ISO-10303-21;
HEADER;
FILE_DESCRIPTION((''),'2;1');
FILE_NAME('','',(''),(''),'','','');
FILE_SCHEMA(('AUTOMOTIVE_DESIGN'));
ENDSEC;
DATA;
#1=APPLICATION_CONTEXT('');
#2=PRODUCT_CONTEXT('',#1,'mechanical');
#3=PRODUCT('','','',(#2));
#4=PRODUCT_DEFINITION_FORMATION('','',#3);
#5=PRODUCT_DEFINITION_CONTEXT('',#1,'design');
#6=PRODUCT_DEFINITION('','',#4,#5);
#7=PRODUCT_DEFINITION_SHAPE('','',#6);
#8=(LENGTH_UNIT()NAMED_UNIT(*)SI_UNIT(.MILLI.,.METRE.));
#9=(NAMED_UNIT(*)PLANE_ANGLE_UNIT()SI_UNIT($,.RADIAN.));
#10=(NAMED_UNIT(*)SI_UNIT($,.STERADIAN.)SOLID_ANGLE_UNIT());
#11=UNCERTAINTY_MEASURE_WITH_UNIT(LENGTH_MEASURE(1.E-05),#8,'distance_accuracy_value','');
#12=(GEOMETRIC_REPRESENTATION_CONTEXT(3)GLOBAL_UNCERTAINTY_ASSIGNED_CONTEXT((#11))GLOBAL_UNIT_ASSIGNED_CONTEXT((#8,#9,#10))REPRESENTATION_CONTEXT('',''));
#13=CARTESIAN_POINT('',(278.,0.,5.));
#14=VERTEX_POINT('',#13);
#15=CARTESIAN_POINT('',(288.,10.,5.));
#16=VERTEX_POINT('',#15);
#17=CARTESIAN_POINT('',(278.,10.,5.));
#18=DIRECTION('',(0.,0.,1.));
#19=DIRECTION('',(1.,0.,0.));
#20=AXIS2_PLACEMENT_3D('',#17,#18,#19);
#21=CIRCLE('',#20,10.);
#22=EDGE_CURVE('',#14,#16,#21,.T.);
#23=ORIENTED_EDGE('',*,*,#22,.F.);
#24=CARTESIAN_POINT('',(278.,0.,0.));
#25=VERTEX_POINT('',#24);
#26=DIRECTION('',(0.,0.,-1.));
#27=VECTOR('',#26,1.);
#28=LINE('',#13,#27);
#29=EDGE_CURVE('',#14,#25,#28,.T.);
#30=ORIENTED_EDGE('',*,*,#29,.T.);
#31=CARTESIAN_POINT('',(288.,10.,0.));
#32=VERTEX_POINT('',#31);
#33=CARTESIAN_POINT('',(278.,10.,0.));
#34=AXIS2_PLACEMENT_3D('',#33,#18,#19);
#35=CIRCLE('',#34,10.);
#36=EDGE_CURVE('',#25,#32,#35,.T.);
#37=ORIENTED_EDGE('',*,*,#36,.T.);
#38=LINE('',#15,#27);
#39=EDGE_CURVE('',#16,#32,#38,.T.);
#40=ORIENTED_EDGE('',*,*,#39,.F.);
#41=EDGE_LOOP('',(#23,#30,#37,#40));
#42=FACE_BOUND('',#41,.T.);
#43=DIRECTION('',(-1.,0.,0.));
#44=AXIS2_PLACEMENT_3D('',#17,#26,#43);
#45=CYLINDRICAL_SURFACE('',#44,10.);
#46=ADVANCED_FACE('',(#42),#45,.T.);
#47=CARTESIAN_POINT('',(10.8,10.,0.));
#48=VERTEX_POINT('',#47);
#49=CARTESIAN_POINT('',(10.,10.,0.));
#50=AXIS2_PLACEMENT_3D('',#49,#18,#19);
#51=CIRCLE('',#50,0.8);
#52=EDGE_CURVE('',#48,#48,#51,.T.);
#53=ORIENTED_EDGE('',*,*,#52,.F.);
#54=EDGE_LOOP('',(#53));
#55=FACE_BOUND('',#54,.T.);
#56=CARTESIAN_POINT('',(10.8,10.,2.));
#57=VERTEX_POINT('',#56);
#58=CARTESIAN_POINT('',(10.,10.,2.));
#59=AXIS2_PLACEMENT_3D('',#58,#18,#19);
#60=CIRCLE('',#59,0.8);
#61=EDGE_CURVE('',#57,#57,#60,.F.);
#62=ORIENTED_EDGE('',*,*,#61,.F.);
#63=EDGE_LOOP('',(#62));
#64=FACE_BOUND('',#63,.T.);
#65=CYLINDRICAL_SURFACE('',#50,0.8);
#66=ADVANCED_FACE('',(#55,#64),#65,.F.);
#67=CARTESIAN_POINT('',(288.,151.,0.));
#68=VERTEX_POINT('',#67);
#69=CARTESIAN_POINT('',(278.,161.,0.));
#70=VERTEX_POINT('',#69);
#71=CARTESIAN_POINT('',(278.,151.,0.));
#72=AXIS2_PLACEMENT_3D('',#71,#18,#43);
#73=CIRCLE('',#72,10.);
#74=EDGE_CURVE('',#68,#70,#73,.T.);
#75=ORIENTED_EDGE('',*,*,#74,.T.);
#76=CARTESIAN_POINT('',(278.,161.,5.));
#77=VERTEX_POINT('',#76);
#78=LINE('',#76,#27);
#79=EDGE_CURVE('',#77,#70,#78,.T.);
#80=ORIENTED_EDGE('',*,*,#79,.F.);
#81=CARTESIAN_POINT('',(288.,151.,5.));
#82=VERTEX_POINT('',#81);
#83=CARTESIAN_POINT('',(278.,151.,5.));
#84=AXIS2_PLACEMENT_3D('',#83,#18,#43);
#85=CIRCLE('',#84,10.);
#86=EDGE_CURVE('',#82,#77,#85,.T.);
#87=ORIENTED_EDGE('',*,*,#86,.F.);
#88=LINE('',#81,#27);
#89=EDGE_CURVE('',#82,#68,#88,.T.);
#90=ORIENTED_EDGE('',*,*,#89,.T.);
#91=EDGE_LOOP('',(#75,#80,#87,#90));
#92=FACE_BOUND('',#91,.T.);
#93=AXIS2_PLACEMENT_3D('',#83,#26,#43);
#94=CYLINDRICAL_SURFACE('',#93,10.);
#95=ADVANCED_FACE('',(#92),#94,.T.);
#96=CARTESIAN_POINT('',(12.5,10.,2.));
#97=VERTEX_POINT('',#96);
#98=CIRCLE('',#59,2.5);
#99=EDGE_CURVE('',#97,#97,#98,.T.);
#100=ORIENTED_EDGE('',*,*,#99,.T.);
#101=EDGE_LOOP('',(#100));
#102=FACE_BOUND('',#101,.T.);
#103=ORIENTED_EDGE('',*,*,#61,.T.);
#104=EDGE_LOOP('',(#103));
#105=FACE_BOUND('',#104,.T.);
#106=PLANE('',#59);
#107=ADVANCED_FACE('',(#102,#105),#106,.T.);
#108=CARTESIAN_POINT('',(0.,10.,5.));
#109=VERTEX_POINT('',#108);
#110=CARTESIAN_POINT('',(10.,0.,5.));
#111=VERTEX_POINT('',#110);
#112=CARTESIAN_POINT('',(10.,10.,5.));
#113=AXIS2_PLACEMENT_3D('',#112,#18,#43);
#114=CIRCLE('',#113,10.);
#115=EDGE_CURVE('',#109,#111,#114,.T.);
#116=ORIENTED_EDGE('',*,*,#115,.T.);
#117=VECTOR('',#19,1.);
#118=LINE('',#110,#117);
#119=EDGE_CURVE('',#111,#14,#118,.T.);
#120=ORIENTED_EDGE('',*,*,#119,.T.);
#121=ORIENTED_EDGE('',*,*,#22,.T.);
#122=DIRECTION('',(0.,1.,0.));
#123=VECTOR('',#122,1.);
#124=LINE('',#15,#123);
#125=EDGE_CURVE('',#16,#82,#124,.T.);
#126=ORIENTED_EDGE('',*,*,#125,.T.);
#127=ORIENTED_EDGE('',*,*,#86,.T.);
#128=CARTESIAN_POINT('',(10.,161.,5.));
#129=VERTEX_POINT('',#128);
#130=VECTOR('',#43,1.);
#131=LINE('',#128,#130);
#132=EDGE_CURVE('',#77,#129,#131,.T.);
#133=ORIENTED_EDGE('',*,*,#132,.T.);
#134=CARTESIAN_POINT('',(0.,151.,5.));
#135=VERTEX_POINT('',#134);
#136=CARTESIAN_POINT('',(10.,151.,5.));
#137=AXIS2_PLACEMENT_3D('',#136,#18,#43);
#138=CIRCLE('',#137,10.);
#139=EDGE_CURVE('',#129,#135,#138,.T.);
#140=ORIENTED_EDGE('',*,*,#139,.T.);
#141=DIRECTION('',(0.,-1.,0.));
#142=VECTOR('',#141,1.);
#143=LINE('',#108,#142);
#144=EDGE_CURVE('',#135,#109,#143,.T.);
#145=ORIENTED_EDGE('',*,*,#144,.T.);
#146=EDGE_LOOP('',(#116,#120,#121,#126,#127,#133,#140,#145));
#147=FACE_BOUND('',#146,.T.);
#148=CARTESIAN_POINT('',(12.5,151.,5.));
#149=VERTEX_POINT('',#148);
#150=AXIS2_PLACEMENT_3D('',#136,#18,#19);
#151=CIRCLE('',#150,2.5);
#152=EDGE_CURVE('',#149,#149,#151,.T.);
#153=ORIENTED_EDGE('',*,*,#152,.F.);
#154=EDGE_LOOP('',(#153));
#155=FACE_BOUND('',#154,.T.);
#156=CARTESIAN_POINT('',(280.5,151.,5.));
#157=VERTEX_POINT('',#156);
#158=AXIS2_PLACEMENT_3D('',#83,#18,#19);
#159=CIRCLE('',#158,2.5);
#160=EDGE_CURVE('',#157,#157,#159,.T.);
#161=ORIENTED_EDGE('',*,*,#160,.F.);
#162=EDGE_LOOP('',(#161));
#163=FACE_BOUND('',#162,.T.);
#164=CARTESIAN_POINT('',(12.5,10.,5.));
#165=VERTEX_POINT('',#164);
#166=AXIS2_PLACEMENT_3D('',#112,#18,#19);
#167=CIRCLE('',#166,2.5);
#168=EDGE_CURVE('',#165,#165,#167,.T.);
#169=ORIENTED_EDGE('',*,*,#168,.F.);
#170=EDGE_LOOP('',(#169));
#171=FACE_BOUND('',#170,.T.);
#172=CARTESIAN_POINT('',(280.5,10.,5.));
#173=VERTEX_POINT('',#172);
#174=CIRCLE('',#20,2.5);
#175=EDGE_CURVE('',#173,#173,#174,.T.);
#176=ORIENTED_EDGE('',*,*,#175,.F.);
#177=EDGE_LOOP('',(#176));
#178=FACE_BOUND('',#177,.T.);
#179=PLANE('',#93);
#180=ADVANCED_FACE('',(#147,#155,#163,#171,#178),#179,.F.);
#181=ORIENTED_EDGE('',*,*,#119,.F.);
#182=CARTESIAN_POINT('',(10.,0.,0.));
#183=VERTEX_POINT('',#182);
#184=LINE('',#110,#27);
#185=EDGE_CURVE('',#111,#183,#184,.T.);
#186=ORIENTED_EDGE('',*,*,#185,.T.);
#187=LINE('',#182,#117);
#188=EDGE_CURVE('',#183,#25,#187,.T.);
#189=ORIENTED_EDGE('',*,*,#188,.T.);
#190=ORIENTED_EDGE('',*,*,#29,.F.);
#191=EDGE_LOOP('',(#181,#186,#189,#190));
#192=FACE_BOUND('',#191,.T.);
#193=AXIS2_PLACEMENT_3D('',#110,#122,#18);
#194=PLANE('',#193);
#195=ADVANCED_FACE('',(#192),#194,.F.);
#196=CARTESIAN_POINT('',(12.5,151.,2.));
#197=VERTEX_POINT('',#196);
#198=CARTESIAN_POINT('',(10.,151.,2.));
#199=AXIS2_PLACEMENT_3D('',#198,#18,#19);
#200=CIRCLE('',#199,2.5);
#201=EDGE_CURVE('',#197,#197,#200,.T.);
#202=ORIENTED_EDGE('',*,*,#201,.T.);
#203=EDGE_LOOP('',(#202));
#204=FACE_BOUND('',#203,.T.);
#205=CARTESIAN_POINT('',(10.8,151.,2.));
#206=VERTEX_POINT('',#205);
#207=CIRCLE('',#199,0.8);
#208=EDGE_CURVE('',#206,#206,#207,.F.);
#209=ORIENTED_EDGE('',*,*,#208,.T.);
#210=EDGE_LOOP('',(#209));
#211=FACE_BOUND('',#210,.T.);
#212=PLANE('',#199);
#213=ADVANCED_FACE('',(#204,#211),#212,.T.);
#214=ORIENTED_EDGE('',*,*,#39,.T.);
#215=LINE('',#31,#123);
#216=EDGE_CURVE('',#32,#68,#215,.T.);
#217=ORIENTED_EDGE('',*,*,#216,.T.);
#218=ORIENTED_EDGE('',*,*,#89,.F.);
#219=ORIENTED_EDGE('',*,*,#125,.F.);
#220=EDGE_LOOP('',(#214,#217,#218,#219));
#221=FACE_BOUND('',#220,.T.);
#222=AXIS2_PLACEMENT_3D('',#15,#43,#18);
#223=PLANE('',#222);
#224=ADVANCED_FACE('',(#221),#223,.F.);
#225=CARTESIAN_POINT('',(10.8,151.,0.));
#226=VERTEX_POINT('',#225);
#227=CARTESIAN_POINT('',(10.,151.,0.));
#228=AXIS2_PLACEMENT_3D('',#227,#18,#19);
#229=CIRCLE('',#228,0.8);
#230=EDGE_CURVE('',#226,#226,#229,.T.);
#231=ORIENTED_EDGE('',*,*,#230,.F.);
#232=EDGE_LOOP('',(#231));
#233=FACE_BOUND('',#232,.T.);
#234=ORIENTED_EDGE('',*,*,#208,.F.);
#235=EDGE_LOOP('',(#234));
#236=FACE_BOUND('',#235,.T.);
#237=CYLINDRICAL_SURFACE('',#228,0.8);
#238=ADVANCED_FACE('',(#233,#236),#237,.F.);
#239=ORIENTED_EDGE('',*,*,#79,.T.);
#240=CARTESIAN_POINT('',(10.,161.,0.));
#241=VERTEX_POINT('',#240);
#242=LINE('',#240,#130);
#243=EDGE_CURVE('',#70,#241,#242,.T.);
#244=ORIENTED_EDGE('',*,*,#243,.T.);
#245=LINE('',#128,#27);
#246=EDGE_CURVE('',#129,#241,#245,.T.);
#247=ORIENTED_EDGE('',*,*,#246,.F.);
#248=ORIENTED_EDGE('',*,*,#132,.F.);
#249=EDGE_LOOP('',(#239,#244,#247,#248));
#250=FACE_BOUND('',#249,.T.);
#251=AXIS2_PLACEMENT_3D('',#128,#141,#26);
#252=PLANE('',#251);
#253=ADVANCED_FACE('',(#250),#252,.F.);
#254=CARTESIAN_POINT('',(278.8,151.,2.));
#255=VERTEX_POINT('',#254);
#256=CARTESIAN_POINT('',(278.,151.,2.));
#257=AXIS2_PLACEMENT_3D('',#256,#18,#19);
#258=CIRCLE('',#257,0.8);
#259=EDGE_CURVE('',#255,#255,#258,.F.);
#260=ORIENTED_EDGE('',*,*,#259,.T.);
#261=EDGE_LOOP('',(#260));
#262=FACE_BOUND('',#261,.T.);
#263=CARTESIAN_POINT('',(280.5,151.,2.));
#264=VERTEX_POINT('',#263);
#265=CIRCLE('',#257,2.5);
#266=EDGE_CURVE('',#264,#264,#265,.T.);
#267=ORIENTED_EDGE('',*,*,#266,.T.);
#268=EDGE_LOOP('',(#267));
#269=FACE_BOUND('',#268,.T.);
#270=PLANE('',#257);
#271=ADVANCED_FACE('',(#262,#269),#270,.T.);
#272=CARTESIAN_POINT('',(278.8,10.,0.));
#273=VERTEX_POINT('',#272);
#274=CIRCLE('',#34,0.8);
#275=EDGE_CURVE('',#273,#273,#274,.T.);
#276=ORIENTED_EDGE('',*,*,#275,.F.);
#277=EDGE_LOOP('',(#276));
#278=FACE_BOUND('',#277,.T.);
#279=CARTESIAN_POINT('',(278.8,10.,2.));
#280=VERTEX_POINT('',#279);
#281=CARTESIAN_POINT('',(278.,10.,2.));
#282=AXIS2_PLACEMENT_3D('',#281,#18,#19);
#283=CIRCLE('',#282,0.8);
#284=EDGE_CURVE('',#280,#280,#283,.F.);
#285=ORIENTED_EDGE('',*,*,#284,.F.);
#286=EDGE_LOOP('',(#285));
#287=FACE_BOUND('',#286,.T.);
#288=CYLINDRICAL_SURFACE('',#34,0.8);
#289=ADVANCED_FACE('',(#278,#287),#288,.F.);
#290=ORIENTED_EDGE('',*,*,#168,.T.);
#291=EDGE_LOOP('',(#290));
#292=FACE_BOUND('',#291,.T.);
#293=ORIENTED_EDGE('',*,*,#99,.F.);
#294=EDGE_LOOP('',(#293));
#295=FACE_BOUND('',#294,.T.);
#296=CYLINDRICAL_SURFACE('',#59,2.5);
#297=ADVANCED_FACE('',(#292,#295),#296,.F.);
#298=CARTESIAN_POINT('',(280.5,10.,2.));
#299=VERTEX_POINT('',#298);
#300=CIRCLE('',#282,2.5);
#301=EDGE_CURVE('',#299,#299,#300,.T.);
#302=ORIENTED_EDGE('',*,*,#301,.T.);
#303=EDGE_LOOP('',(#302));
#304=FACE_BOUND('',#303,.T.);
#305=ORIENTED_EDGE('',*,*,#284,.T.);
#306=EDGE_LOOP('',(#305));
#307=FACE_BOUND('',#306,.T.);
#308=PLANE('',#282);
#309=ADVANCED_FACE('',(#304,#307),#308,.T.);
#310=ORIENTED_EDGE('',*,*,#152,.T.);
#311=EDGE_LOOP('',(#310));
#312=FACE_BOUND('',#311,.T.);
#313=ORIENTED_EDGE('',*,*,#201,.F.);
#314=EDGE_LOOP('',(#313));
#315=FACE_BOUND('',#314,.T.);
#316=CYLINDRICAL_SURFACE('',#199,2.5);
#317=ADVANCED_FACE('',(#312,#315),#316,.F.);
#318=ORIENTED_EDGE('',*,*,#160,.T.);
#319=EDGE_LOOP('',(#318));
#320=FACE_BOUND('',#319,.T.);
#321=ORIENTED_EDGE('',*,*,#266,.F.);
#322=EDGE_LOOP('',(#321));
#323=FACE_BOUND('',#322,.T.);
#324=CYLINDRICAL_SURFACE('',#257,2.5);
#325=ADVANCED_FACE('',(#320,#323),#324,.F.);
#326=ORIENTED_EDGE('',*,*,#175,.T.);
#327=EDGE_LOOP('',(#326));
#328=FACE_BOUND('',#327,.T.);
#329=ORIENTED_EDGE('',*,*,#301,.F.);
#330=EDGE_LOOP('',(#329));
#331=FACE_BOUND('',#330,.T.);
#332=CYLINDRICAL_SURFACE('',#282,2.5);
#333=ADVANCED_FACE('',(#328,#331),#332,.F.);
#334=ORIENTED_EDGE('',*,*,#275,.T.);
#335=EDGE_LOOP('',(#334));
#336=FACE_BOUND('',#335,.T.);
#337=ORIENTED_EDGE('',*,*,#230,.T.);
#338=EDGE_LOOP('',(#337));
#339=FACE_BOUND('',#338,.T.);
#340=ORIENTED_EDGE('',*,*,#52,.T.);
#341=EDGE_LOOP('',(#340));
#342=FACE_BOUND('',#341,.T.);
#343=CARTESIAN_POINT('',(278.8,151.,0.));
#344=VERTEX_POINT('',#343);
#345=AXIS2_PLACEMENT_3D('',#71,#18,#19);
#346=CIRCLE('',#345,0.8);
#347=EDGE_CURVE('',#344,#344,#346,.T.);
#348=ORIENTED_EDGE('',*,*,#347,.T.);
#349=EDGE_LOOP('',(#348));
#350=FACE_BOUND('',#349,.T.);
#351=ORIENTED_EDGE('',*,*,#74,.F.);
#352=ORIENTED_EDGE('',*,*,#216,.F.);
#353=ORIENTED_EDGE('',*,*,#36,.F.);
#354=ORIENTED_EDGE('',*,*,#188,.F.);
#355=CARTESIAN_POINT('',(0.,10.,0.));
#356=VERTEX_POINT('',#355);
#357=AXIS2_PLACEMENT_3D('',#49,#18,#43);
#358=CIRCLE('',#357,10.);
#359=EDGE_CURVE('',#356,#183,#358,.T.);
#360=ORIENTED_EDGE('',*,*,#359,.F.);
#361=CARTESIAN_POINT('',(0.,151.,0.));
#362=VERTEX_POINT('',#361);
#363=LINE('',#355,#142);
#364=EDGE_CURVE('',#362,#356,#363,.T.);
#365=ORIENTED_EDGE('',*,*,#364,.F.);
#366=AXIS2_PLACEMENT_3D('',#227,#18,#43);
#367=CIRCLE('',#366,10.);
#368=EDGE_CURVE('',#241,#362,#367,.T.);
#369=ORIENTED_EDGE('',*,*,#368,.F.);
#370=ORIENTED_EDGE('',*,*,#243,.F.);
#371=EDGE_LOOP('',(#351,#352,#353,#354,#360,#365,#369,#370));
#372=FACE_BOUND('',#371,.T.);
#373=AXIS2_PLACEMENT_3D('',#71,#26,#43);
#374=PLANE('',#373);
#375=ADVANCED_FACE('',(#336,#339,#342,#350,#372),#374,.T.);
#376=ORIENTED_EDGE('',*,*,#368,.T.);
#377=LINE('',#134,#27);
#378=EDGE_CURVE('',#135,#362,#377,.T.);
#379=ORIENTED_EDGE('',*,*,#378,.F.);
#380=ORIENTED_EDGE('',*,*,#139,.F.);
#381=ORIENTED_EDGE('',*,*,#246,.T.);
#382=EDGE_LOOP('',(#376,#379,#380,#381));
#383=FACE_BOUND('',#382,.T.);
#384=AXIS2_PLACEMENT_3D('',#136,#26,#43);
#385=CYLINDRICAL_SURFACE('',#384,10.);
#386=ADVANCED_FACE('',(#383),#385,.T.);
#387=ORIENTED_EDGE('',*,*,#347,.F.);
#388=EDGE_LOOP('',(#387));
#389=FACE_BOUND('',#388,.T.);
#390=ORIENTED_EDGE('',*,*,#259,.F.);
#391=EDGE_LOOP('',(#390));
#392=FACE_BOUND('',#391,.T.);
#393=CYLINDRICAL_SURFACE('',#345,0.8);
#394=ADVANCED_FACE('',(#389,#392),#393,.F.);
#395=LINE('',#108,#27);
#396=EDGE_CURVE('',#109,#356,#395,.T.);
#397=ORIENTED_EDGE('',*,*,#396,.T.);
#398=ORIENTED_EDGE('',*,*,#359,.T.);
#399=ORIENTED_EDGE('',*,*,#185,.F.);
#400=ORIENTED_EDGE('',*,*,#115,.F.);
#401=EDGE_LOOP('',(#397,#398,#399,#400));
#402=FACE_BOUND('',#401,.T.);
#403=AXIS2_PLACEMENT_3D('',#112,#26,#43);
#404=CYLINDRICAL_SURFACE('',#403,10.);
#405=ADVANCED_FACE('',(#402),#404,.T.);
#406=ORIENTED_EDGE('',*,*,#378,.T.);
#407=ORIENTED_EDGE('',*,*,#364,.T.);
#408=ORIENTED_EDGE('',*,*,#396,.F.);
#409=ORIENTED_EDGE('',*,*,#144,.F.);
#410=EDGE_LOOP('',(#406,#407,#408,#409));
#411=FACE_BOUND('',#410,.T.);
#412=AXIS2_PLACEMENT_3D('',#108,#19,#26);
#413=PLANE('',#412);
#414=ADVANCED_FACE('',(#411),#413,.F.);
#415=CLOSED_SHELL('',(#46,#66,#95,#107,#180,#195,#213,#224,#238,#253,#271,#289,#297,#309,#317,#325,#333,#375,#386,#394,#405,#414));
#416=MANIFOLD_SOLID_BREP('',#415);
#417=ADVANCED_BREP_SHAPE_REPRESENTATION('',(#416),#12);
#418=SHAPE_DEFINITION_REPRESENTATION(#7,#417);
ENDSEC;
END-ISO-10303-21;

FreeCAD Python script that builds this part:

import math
import FreeCAD as App
import Part
import Sketcher
from FreeCAD import Vector
Q = App.Units.Quantity

doc = App.newDocument("Part")
params = doc.addObject("Spreadsheet::Sheet", "Params")
for row, (alias, value) in enumerate([
    ("sketch1_radius", "10 mm"),
    ("sketch1_width", "268 mm"),
    ("sketch1_height", "141 mm"),
    ("pad1_length", "5 mm"),
    ("sketch2_diameter", "1.6 mm"),
    ("sketch3_diameter", "5 mm"),
    ("pocket2_length", "3 mm"),
], start=1):
    params.set(f"A{row}", alias)
    params.set(f"B{row}", "=" + value)
    params.setAlias(f"B{row}", alias)

body = doc.addObject("PartDesign::Body", "Body")

# Sketch on XY plane
sketch1 = body.newObject("Sketcher::SketchObject", "Sketch")
sketch1.AttachmentSupport = (doc.getObject("XY_Plane"), [""])
sketch1.MapMode = "FlatFace"
sketch1.addGeometry([
    Part.LineSegment(Vector(10, 0, 0), Vector(278, 0, 0)),  # 0
    Part.ArcOfCircle(Part.Circle(Vector(278, 10, 0), Vector(0, 0, 1), 10), math.radians(-90), math.radians(0)),  # 1
    Part.LineSegment(Vector(288, 10, 0), Vector(288, 151, 0)),  # 2
    Part.ArcOfCircle(Part.Circle(Vector(278, 151, 0), Vector(0, 0, 1), 10), math.radians(0), math.radians(90)),  # 3
    Part.LineSegment(Vector(278, 161, 0), Vector(10, 161, 0)),  # 4
    Part.ArcOfCircle(Part.Circle(Vector(10, 151, 0), Vector(0, 0, 1), 10), math.radians(90), math.radians(180)),  # 5
    Part.LineSegment(Vector(0, 151, 0), Vector(0, 10, 0)),  # 6
    Part.ArcOfCircle(Part.Circle(Vector(10, 10, 0), Vector(0, 0, 1), 10), math.radians(180), math.radians(270)),  # 7
], False)
sketch1.addConstraint([
    Sketcher.Constraint("Tangent", 0, 2, 1, 1),
    Sketcher.Constraint("Tangent", 1, 2, 2, 1),
    Sketcher.Constraint("Tangent", 2, 2, 3, 1),
    Sketcher.Constraint("Tangent", 3, 2, 4, 1),
    Sketcher.Constraint("Tangent", 4, 2, 5, 1),
    Sketcher.Constraint("Tangent", 5, 2, 6, 1),
    Sketcher.Constraint("Tangent", 6, 2, 7, 1),
    Sketcher.Constraint("Tangent", 7, 2, 0, 1),
    Sketcher.Constraint("Horizontal", 0),
    Sketcher.Constraint("Vertical", 2),
    Sketcher.Constraint("Horizontal", 4),
    Sketcher.Constraint("Vertical", 6),
    Sketcher.Constraint("Equal", 1, 3),
    Sketcher.Constraint("Equal", 3, 5),
    Sketcher.Constraint("Equal", 5, 7),
    Sketcher.Constraint("PointOnObject", 0, 2, -1),
    Sketcher.Constraint("PointOnObject", 5, 2, -2),
    Sketcher.Constraint("Radius", 1, Q("10 mm")),
    Sketcher.Constraint("DistanceX", 0, 1, 0, 2, Q("268 mm")),
    Sketcher.Constraint("DistanceY", 2, 1, 2, 2, Q("141 mm")),
])
sketch1.setExpression("Constraints[17]", "Params.sketch1_radius")
sketch1.setExpression("Constraints[18]", "Params.sketch1_width")
sketch1.setExpression("Constraints[19]", "Params.sketch1_height")
pad1 = body.newObject("PartDesign::Pad", "Pad")
pad1.Profile = sketch1
pad1.setExpression("Length", "Params.pad1_length")

# Sketch on XY plane
sketch2 = body.newObject("Sketcher::SketchObject", "Sketch001")
sketch2.AttachmentSupport = (doc.getObject("XY_Plane"), [""])
sketch2.MapMode = "FlatFace"
sketch2.AttachmentOffset = App.Placement(Vector(0, 0, 5), App.Rotation())
sketch2.addGeometry([
    Part.Circle(Vector(10, 151, 0), Vector(0, 0, 1), 0.8),
    Part.Circle(Vector(278, 151, 0), Vector(0, 0, 1), 0.8),
    Part.Circle(Vector(10, 10, 0), Vector(0, 0, 1), 0.8),
    Part.Circle(Vector(278, 10, 0), Vector(0, 0, 1), 0.8),
], False)
sketch2.addConstraint([
    Sketcher.Constraint("Equal", 0, 1),
    Sketcher.Constraint("Equal", 1, 2),
    Sketcher.Constraint("Equal", 2, 3),
    Sketcher.Constraint("Horizontal", 0, 3, 1, 3),
    Sketcher.Constraint("Horizontal", 2, 3, 3, 3),
    Sketcher.Constraint("Vertical", 0, 3, 2, 3),
    Sketcher.Constraint("Vertical", 1, 3, 3, 3),
    Sketcher.Constraint("Diameter", 0, Q("1.6 mm")),
    Sketcher.Constraint("DistanceX", -1, 1, 0, 3, Q("10 mm")),
    Sketcher.Constraint("DistanceY", -1, 1, 0, 3, Q("151 mm")),
    Sketcher.Constraint("DistanceX", -1, 1, 1, 3, Q("278 mm")),
    Sketcher.Constraint("DistanceY", -1, 1, 2, 3, Q("10 mm")),
])
sketch2.setExpression("Constraints[7]", "Params.sketch2_diameter")
pocket1 = body.newObject("PartDesign::Pocket", "Pocket")
pocket1.Profile = sketch2
pocket1.Type = "ThroughAll"

# Sketch on XY plane
sketch3 = body.newObject("Sketcher::SketchObject", "Sketch002")
sketch3.AttachmentSupport = (doc.getObject("XY_Plane"), [""])
sketch3.MapMode = "FlatFace"
sketch3.AttachmentOffset = App.Placement(Vector(0, 0, 5), App.Rotation())
sketch3.addGeometry([
    Part.Circle(Vector(10, 151, 0), Vector(0, 0, 1), 2.5),
    Part.Circle(Vector(10, 10, 0), Vector(0, 0, 1), 2.5),
    Part.Circle(Vector(278, 10, 0), Vector(0, 0, 1), 2.5),
    Part.Circle(Vector(278, 151, 0), Vector(0, 0, 1), 2.5),
], False)
sketch3.addConstraint([
    Sketcher.Constraint("Equal", 0, 1),
    Sketcher.Constraint("Equal", 1, 2),
    Sketcher.Constraint("Equal", 2, 3),
    Sketcher.Constraint("Horizontal", 1, 3, 2, 3),
    Sketcher.Constraint("Horizontal", 0, 3, 3, 3),
    Sketcher.Constraint("Vertical", 0, 3, 1, 3),
    Sketcher.Constraint("Vertical", 2, 3, 3, 3),
    Sketcher.Constraint("Diameter", 0, Q("5 mm")),
    Sketcher.Constraint("DistanceX", -1, 1, 0, 3, Q("10 mm")),
    Sketcher.Constraint("DistanceY", -1, 1, 0, 3, Q("151 mm")),
    Sketcher.Constraint("DistanceY", -1, 1, 1, 3, Q("10 mm")),
    Sketcher.Constraint("DistanceX", -1, 1, 2, 3, Q("278 mm")),
])
sketch3.setExpression("Constraints[7]", "Params.sketch3_diameter")
pocket2 = body.newObject("PartDesign::Pocket", "Pocket001")
pocket2.Profile = sketch3
pocket2.setExpression("Length", "Params.pocket2_length")

doc.recompute()
